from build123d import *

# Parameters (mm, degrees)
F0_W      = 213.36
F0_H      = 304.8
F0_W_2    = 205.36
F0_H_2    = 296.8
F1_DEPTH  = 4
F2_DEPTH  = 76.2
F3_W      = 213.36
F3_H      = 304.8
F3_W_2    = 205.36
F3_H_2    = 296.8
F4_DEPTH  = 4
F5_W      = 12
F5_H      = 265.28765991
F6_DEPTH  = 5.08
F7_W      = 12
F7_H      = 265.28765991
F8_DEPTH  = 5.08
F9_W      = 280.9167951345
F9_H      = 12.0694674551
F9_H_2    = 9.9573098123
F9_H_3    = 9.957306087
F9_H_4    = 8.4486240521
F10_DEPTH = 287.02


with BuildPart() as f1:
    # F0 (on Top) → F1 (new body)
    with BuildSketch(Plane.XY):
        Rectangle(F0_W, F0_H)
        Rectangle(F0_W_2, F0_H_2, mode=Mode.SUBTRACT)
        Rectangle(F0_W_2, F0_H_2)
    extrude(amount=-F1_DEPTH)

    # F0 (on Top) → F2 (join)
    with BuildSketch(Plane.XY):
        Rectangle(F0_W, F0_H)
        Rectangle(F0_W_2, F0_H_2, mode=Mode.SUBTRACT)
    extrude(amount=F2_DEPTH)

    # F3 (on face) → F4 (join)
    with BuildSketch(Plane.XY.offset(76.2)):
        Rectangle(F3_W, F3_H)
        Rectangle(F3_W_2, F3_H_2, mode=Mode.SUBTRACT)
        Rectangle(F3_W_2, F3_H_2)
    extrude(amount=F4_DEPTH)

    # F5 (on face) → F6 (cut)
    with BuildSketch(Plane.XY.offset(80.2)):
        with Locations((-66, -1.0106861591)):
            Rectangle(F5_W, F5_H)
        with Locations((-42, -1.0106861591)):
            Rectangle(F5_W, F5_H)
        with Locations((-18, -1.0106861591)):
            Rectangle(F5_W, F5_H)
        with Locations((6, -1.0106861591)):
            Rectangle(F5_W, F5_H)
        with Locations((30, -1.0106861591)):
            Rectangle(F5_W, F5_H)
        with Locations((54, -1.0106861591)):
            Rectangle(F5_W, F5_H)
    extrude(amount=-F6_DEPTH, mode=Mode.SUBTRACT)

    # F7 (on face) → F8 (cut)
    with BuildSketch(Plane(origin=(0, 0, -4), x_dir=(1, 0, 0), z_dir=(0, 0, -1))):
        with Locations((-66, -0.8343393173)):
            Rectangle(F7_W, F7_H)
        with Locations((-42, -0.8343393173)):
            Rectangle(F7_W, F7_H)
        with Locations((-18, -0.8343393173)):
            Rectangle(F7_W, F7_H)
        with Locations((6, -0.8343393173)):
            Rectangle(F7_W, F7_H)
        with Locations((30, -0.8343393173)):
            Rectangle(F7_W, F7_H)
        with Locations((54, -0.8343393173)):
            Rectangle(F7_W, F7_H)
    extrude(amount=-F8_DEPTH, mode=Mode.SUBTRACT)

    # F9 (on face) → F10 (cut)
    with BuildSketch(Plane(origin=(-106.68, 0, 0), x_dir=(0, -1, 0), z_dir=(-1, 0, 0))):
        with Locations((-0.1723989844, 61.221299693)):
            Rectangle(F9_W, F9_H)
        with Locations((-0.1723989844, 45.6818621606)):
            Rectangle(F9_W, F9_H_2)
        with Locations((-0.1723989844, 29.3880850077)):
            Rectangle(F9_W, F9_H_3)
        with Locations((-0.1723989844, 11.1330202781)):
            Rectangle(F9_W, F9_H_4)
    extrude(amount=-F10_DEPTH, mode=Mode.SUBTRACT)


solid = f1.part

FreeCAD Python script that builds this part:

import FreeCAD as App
import Part
import Sketcher
Q = App.Units.Quantity

doc = App.newDocument("Part")
body = doc.addObject("PartDesign::Body", "Body")

# Sketch on XY plane
sketch1 = body.newObject("Sketcher::SketchObject", "Sketch")
sketch1.AttachmentSupport = (doc.getObject("XY_Plane"), [""])
sketch1.MapMode = "FlatFace"
sketch1.addGeometry([
    Part.LineSegment(App.Vector(-107, 152, 0), App.Vector(-107, -152, 0)),
    Part.LineSegment(App.Vector(-107, -152, 0), App.Vector(107, -152, 0)),
    Part.LineSegment(App.Vector(107, -152, 0), App.Vector(107, 152, 0)),
    Part.LineSegment(App.Vector(107, 152, 0), App.Vector(-107, 152, 0)),
], False)
sketch1.addConstraint([
    Sketcher.Constraint("Coincident", 0, 2, 1, 1),
    Sketcher.Constraint("Coincident", 1, 2, 2, 1),
    Sketcher.Constraint("Coincident", 2, 2, 3, 1),
    Sketcher.Constraint("Coincident", 3, 2, 0, 1),
    Sketcher.Constraint("Vertical", 0),
    Sketcher.Constraint("Horizontal", 1),
    Sketcher.Constraint("Vertical", 2),
    Sketcher.Constraint("Horizontal", 3),
    Sketcher.Constraint("Symmetric", 0, 2, 2, 2, -1, 1),
    Sketcher.Constraint("DistanceY", 0, 2, 0, 1, Q("12 in")),
    Sketcher.Constraint("DistanceX", 1, 1, 1, 2, Q("8.4 in")),
])
pad1 = body.newObject("PartDesign::Pad", "Pad")
pad1.Profile = sketch1
pad1.Length = 4
pad1.Reversed = True

# Sketch on XY plane
sketch2 = body.newObject("Sketcher::SketchObject", "Sketch001")
sketch2.AttachmentSupport = (doc.getObject("XY_Plane"), [""])
sketch2.MapMode = "FlatFace"
sketch2.addGeometry([
    Part.LineSegment(App.Vector(-107, 152, 0), App.Vector(-107, -152, 0)),  # 0
    Part.LineSegment(App.Vector(-107, -152, 0), App.Vector(107, -152, 0)),  # 1
    Part.LineSegment(App.Vector(107, -152, 0), App.Vector(107, 152, 0)),  # 2
    Part.LineSegment(App.Vector(107, 152, 0), App.Vector(-107, 152, 0)),  # 3
    Part.LineSegment(App.Vector(103, -148, 0), App.Vector(-103, -148, 0)),  # 4
    Part.LineSegment(App.Vector(-103, -148, 0), App.Vector(-103, 148, 0)),  # 5
    Part.LineSegment(App.Vector(-103, 148, 0), App.Vector(103, 148, 0)),  # 6
    Part.LineSegment(App.Vector(103, 148, 0), App.Vector(103, -148, 0)),  # 7
], False)
sketch2.addConstraint([
    Sketcher.Constraint("Coincident", 0, 2, 1, 1),
    Sketcher.Constraint("Coincident", 1, 2, 2, 1),
    Sketcher.Constraint("Coincident", 2, 2, 3, 1),
    Sketcher.Constraint("Coincident", 3, 2, 0, 1),
    Sketcher.Constraint("Coincident", 4, 2, 5, 1),
    Sketcher.Constraint("Coincident", 5, 2, 6, 1),
    Sketcher.Constraint("Coincident", 6, 2, 7, 1),
    Sketcher.Constraint("Coincident", 7, 2, 4, 1),
    Sketcher.Constraint("Vertical", 0),
    Sketcher.Constraint("Horizontal", 1),
    Sketcher.Constraint("Vertical", 2),
    Sketcher.Constraint("Horizontal", 3),
    Sketcher.Constraint("Horizontal", 4),
    Sketcher.Constraint("Vertical", 5),
    Sketcher.Constraint("Horizontal", 6),
    Sketcher.Constraint("Vertical", 7),
    Sketcher.Constraint("Symmetric", 0, 2, 2, 2, -1, 1),
    Sketcher.Constraint("Symmetric", 4, 2, 6, 2, -1, 1),
    Sketcher.Constraint("DistanceY", 0, 2, 0, 1, Q("12 in")),
    Sketcher.Constraint("DistanceX", 1, 1, 1, 2, Q("8.4 in")),
    Sketcher.Constraint("DistanceX", 4, 2, 4, 1, 205.36),
    Sketcher.Constraint("DistanceY", 5, 1, 5, 2, 296.8),
])
pad2 = body.newObject("PartDesign::Pad", "Pad001")
pad2.Profile = sketch2
pad2.Length = Q("3 in")

# Sketch on XY plane
sketch3 = body.newObject("Sketcher::SketchObject", "Sketch002")
sketch3.AttachmentSupport = (doc.getObject("XY_Plane"), [""])
sketch3.MapMode = "FlatFace"
sketch3.AttachmentOffset = App.Placement(App.Vector(0, 0, 3 * 25.4), App.Rotation())
sketch3.addGeometry([
    Part.LineSegment(App.Vector(-107, 152, 0), App.Vector(-107, -152, 0)),
    Part.LineSegment(App.Vector(-107, -152, 0), App.Vector(107, -152, 0)),
    Part.LineSegment(App.Vector(107, -152, 0), App.Vector(107, 152, 0)),
    Part.LineSegment(App.Vector(107, 152, 0), App.Vector(-107, 152, 0)),
], False)
sketch3.addConstraint([
    Sketcher.Constraint("Coincident", 0, 2, 1, 1),
    Sketcher.Constraint("Coincident", 1, 2, 2, 1),
    Sketcher.Constraint("Coincident", 2, 2, 3, 1),
    Sketcher.Constraint("Coincident", 3, 2, 0, 1),
    Sketcher.Constraint("Vertical", 0),
    Sketcher.Constraint("Horizontal", 1),
    Sketcher.Constraint("Vertical", 2),
    Sketcher.Constraint("Horizontal", 3),
    Sketcher.Constraint("Symmetric", 0, 2, 2, 2, -1, 1),
    Sketcher.Constraint("DistanceY", 0, 2, 0, 1, Q("12 in")),
    Sketcher.Constraint("DistanceX", 1, 1, 1, 2, Q("8.4 in")),
])
pad3 = body.newObject("PartDesign::Pad", "Pad002")
pad3.Profile = sketch3
pad3.Length = 4

# Sketch on XY plane
sketch4 = body.newObject("Sketcher::SketchObject", "Sketch003")
sketch4.AttachmentSupport = (doc.getObject("XY_Plane"), [""])
sketch4.MapMode = "FlatFace"
sketch4.AttachmentOffset = App.Placement(App.Vector(0, 0, 80.2), App.Rotation())
sketch4.addGeometry([
    Part.LineSegment(App.Vector(-72, 132, 0), App.Vector(-72, -134, 0)),  # 0
    Part.LineSegment(App.Vector(-72, -134, 0), App.Vector(-60, -134, 0)),  # 1
    Part.LineSegment(App.Vector(-60, -134, 0), App.Vector(-60, 132, 0)),  # 2
    Part.LineSegment(App.Vector(-60, 132, 0), App.Vector(-72, 132, 0)),  # 3
    Part.LineSegment(App.Vector(-48, 132, 0), App.Vector(-48, -134, 0)),  # 4
    Part.LineSegment(App.Vector(-48, -134, 0), App.Vector(-36, -134, 0)),  # 5
    Part.LineSegment(App.Vector(-36, -134, 0), App.Vector(-36, 132, 0)),  # 6
    Part.LineSegment(App.Vector(-36, 132, 0), App.Vector(-48, 132, 0)),  # 7
    Part.LineSegment(App.Vector(-24, 132, 0), App.Vector(-24, -134, 0)),  # 8
    Part.LineSegment(App.Vector(-24, -134, 0), App.Vector(-12, -134, 0)),  # 9
    Part.LineSegment(App.Vector(-12, -134, 0), App.Vector(-12, 132, 0)),  # 10
    Part.LineSegment(App.Vector(-12, 132, 0), App.Vector(-24, 132, 0)),  # 11
    Part.LineSegment(App.Vector(0, 132, 0), App.Vector(0, -134, 0)),  # 12
    Part.LineSegment(App.Vector(0, -134, 0), App.Vector(12, -134, 0)),  # 13
    Part.LineSegment(App.Vector(12, -134, 0), App.Vector(12, 132, 0)),  # 14
    Part.LineSegment(App.Vector(12, 132, 0), App.Vector(0, 132, 0)),  # 15
    Part.LineSegment(App.Vector(24, 132, 0), App.Vector(24, -134, 0)),  # 16
    Part.LineSegment(App.Vector(24, -134, 0), App.Vector(36, -134, 0)),  # 17
    Part.LineSegment(App.Vector(36, -134, 0), App.Vector(36, 132, 0)),  # 18
    Part.LineSegment(App.Vector(36, 132, 0), App.Vector(24, 132, 0)),  # 19
    Part.LineSegment(App.Vector(48, 132, 0), App.Vector(48, -134, 0)),  # 20
    Part.LineSegment(App.Vector(48, -134, 0), App.Vector(60, -134, 0)),  # 21
    Part.LineSegment(App.Vector(60, -134, 0), App.Vector(60, 132, 0)),  # 22
    Part.LineSegment(App.Vector(60, 132, 0), App.Vector(48, 132, 0)),  # 23
], False)
sketch4.addConstraint([
    Sketcher.Constraint("Coincident", 0, 2, 1, 1),
    Sketcher.Constraint("Coincident", 1, 2, 2, 1),
    Sketcher.Constraint("Coincident", 2, 2, 3, 1),
    Sketcher.Constraint("Coincident", 3, 2, 0, 1),
    Sketcher.Constraint("Coincident", 4, 2, 5, 1),
    Sketcher.Constraint("Coincident", 5, 2, 6, 1),
    Sketcher.Constraint("Coincident", 6, 2, 7, 1),
    Sketcher.Constraint("Coincident", 7, 2, 4, 1),
    Sketcher.Constraint("Coincident", 8, 2, 9, 1),
    Sketcher.Constraint("Coincident", 9, 2, 10, 1),
    Sketcher.Constraint("Coincident", 10, 2, 11, 1),
    Sketcher.Constraint("Coincident", 11, 2, 8, 1),
    Sketcher.Constraint("Coincident", 12, 2, 13, 1),
    Sketcher.Constraint("Coincident", 13, 2, 14, 1),
    Sketcher.Constraint("Coincident", 14, 2, 15, 1),
    Sketcher.Constraint("Coincident", 15, 2, 12, 1),
    Sketcher.Constraint("Coincident", 16, 2, 17, 1),
    Sketcher.Constraint("Coincident", 17, 2, 18, 1),
    Sketcher.Constraint("Coincident", 18, 2, 19, 1),
    Sketcher.Constraint("Coincident", 19, 2, 16, 1),
    Sketcher.Constraint("Coincident", 20, 2, 21, 1),
    Sketcher.Constraint("Coincident", 21, 2, 22, 1),
    Sketcher.Constraint("Coincident", 22, 2, 23, 1),
    Sketcher.Constraint("Coincident", 23, 2, 20, 1),
    Sketcher.Constraint("Vertical", 0),
    Sketcher.Constraint("Horizontal", 1),
    Sketcher.Constraint("Vertical", 2),
    Sketcher.Constraint("Horizontal", 3),
    Sketcher.Constraint("Vertical", 4),
    Sketcher.Constraint("Horizontal", 5),
    Sketcher.Constraint("Vertical", 6),
    Sketcher.Constraint("Horizontal", 7),
    Sketcher.Constraint("Vertical", 8),
    Sketcher.Constraint("Horizontal", 9),
    Sketcher.Constraint("Vertical", 10),
    Sketcher.Constraint("Horizontal", 11),
    Sketcher.Constraint("Vertical", 12),
    Sketcher.Constraint("Horizontal", 13),
    Sketcher.Constraint("Vertical", 14),
    Sketcher.Constraint("Horizontal", 15),
    Sketcher.Constraint("Vertical", 16),
    Sketcher.Constraint("Horizontal", 17),
    Sketcher.Constraint("Vertical", 18),
    Sketcher.Constraint("Horizontal", 19),
    Sketcher.Constraint("Vertical", 20),
    Sketcher.Constraint("Horizontal", 21),
    Sketcher.Constraint("Vertical", 22),
    Sketcher.Constraint("Horizontal", 23),
    Sketcher.Constraint("Symmetric", 9, 2, 13, 2, -2),
    Sketcher.Constraint("Symmetric", 8, 2, 16, 2, -2),
    Sketcher.Constraint("Symmetric", 5, 2, 17, 2, -2),
    Sketcher.Constraint("Symmetric", 4, 2, 20, 2, -2),
    Sketcher.Constraint("Symmetric", 1, 2, 21, 2, -2),
    Sketcher.Constraint("PointOnObject", 12, 2, -2),
    Sketcher.Constraint("Horizontal", 3, 2, 6, 2),
    Sketcher.Constraint("Horizontal", 7, 2, 10, 2),
    Sketcher.Constraint("Horizontal", 11, 2, 14, 2),
    Sketcher.Constraint("Horizontal", 15, 2, 18, 2),
    Sketcher.Constraint("Horizontal", 19, 2, 22, 2),
    Sketcher.Constraint("Equal", 3, 5),
    Sketcher.Constraint("Equal", 7, 9),
    Sketcher.Constraint("Equal", 11, 13),
    Sketcher.Constraint("Equal", 15, 17),
    Sketcher.Constraint("Equal", 19, 21),
    Sketcher.Constraint("DistanceX", 1, 1, 1, 2, 12.0),
    Sketcher.Constraint("DistanceY", 0, 2, 0, 1, 265.28766),
    Sketcher.Constraint("DistanceY", 0, 2, -1, 1, 133.654516),
])
pocket1 = body.newObject("PartDesign::Pocket", "Pocket")
pocket1.Profile = sketch4
pocket1.Length = Q("0.2 in")

# Sketch on XY plane
sketch5 = body.newObject("Sketcher::SketchObject", "Sketch004")
sketch5.AttachmentSupport = (doc.getObject("XY_Plane"), [""])
sketch5.MapMode = "FlatFace"
sketch5.AttachmentOffset = App.Placement(App.Vector(0, 0, -4), App.Rotation())
sketch5.addGeometry([
    Part.LineSegment(App.Vector(-72, -132, 0), App.Vector(-72, 133, 0)),  # 0
    Part.LineSegment(App.Vector(-72, 133, 0), App.Vector(-60, 133, 0)),  # 1
    Part.LineSegment(App.Vector(-60, 133, 0), App.Vector(-60, -132, 0)),  # 2
    Part.LineSegment(App.Vector(-60, -132, 0), App.Vector(-72, -132, 0)),  # 3
    Part.LineSegment(App.Vector(-48, -132, 0), App.Vector(-48, 133, 0)),  # 4
    Part.LineSegment(App.Vector(-48, 133, 0), App.Vector(-36, 133, 0)),  # 5
    Part.LineSegment(App.Vector(-36, 133, 0), App.Vector(-36, -132, 0)),  # 6
    Part.LineSegment(App.Vector(-36, -132, 0), App.Vector(-48, -132, 0)),  # 7
    Part.LineSegment(App.Vector(-24, -132, 0), App.Vector(-24, 133, 0)),  # 8
    Part.LineSegment(App.Vector(-24, 133, 0), App.Vector(-12, 133, 0)),  # 9
    Part.LineSegment(App.Vector(-12, 133, 0), App.Vector(-12, -132, 0)),  # 10
    Part.LineSegment(App.Vector(-12, -132, 0), App.Vector(-24, -132, 0)),  # 11
    Part.LineSegment(App.Vector(0, -132, 0), App.Vector(0, 133, 0)),  # 12
    Part.LineSegment(App.Vector(0, 133, 0), App.Vector(12, 133, 0)),  # 13
    Part.LineSegment(App.Vector(12, 133, 0), App.Vector(12, -132, 0)),  # 14
    Part.LineSegment(App.Vector(12, -132, 0), App.Vector(0, -132, 0)),  # 15
    Part.LineSegment(App.Vector(24, -132, 0), App.Vector(24, 133, 0)),  # 16
    Part.LineSegment(App.Vector(24, 133, 0), App.Vector(36, 133, 0)),  # 17
    Part.LineSegment(App.Vector(36, 133, 0), App.Vector(36, -132, 0)),  # 18
    Part.LineSegment(App.Vector(36, -132, 0), App.Vector(24, -132, 0)),  # 19
    Part.LineSegment(App.Vector(48, -132, 0), App.Vector(48, 133, 0)),  # 20
    Part.LineSegment(App.Vector(48, 133, 0), App.Vector(60, 133, 0)),  # 21
    Part.LineSegment(App.Vector(60, 133, 0), App.Vector(60, -132, 0)),  # 22
    Part.LineSegment(App.Vector(60, -132, 0), App.Vector(48, -132, 0)),  # 23
], False)
sketch5.addConstraint([
    Sketcher.Constraint("Coincident", 0, 2, 1, 1),
    Sketcher.Constraint("Coincident", 1, 2, 2, 1),
    Sketcher.Constraint("Coincident", 2, 2, 3, 1),
    Sketcher.Constraint("Coincident", 3, 2, 0, 1),
    Sketcher.Constraint("Coincident", 4, 2, 5, 1),
    Sketcher.Constraint("Coincident", 5, 2, 6, 1),
    Sketcher.Constraint("Coincident", 6, 2, 7, 1),
    Sketcher.Constraint("Coincident", 7, 2, 4, 1),
    Sketcher.Constraint("Coincident", 8, 2, 9, 1),
    Sketcher.Constraint("Coincident", 9, 2, 10, 1),
    Sketcher.Constraint("Coincident", 10, 2, 11, 1),
    Sketcher.Constraint("Coincident", 11, 2, 8, 1),
    Sketcher.Constraint("Coincident", 12, 2, 13, 1),
    Sketcher.Constraint("Coincident", 13, 2, 14, 1),
    Sketcher.Constraint("Coincident", 14, 2, 15, 1),
    Sketcher.Constraint("Coincident", 15, 2, 12, 1),
    Sketcher.Constraint("Coincident", 16, 2, 17, 1),
    Sketcher.Constraint("Coincident", 17, 2, 18, 1),
    Sketcher.Constraint("Coincident", 18, 2, 19, 1),
    Sketcher.Constraint("Coincident", 19, 2, 16, 1),
    Sketcher.Constraint("Coincident", 20, 2, 21, 1),
    Sketcher.Constraint("Coincident", 21, 2, 22, 1),
    Sketcher.Constraint("Coincident", 22, 2, 23, 1),
    Sketcher.Constraint("Coincident", 23, 2, 20, 1),
    Sketcher.Constraint("Vertical", 0),
    Sketcher.Constraint("Horizontal", 1),
    Sketcher.Constraint("Vertical", 2),
    Sketcher.Constraint("Horizontal", 3),
    Sketcher.Constraint("Vertical", 4),
    Sketcher.Constraint("Horizontal", 5),
    Sketcher.Constraint("Vertical", 6),
    Sketcher.Constraint("Horizontal", 7),
    Sketcher.Constraint("Vertical", 8),
    Sketcher.Constraint("Horizontal", 9),
    Sketcher.Constraint("Vertical", 10),
    Sketcher.Constraint("Horizontal", 11),
    Sketcher.Constraint("Vertical", 12),
    Sketcher.Constraint("Horizontal", 13),
    Sketcher.Constraint("Vertical", 14),
    Sketcher.Constraint("Horizontal", 15),
    Sketcher.Constraint("Vertical", 16),
    Sketcher.Constraint("Horizontal", 17),
    Sketcher.Constraint("Vertical", 18),
    Sketcher.Constraint("Horizontal", 19),
    Sketcher.Constraint("Vertical", 20),
    Sketcher.Constraint("Horizontal", 21),
    Sketcher.Constraint("Vertical", 22),
    Sketcher.Constraint("Horizontal", 23),
    Sketcher.Constraint("Symmetric", 9, 2, 13, 2, -2),
    Sketcher.Constraint("Symmetric", 8, 2, 16, 2, -2),
    Sketcher.Constraint("Symmetric", 5, 2, 17, 2, -2),
    Sketcher.Constraint("Symmetric", 4, 2, 20, 2, -2),
    Sketcher.Constraint("Symmetric", 1, 2, 21, 2, -2),
    Sketcher.Constraint("PointOnObject", 12, 2, -2),
    Sketcher.Constraint("Horizontal", 3, 2, 6, 2),
    Sketcher.Constraint("Horizontal", 7, 2, 10, 2),
    Sketcher.Constraint("Horizontal", 11, 2, 14, 2),
    Sketcher.Constraint("Horizontal", 15, 2, 18, 2),
    Sketcher.Constraint("Horizontal", 19, 2, 22, 2),
    Sketcher.Constraint("Equal", 3, 5),
    Sketcher.Constraint("Equal", 7, 9),
    Sketcher.Constraint("Equal", 11, 13),
    Sketcher.Constraint("Equal", 15, 17),
    Sketcher.Constraint("Equal", 19, 21),
    Sketcher.Constraint("DistanceX", 1, 1, 1, 2, 12.0),
    Sketcher.Constraint("DistanceY", 0, 1, 0, 2, 265.28766),
    Sketcher.Constraint("DistanceY", -1, 1, 0, 2, 133.478169),
])
pocket2 = body.newObject("PartDesign::Pocket", "Pocket001")
pocket2.Profile = sketch5
pocket2.Length = Q("0.2 in")
pocket2.Reversed = True

# Sketch on YZ plane
sketch6 = body.newObject("Sketcher::SketchObject", "Sketch005")
sketch6.AttachmentSupport = (doc.getObject("YZ_Plane"), [""])
sketch6.MapMode = "FlatFace"
sketch6.AttachmentOffset = App.Placement(App.Vector(0, 0, -4.2 * 25.4), App.Rotation())
sketch6.addGeometry([
    Part.LineSegment(App.Vector(141, 67, 0), App.Vector(141, 55, 0)),  # 0
    Part.LineSegment(App.Vector(141, 55, 0), App.Vector(-140, 55, 0)),  # 1
    Part.LineSegment(App.Vector(-140, 55, 0), App.Vector(-140, 67, 0)),  # 2
    Part.LineSegment(App.Vector(-140, 67, 0), App.Vector(141, 67, 0)),  # 3
    Part.LineSegment(App.Vector(141, 51, 0), App.Vector(141, 41, 0)),  # 4
    Part.LineSegment(App.Vector(141, 41, 0), App.Vector(-140, 41, 0)),  # 5
    Part.LineSegment(App.Vector(-140, 41, 0), App.Vector(-140, 51, 0)),  # 6
    Part.LineSegment(App.Vector(-140, 51, 0), App.Vector(141, 51, 0)),  # 7
    Part.LineSegment(App.Vector(141, 34, 0), App.Vector(141, 24, 0)),  # 8
    Part.LineSegment(App.Vector(141, 24, 0), App.Vector(-140, 24, 0)),  # 9
    Part.LineSegment(App.Vector(-140, 24, 0), App.Vector(-140, 34, 0)),  # 10
    Part.LineSegment(App.Vector(-140, 34, 0), App.Vector(141, 34, 0)),  # 11
    Part.LineSegment(App.Vector(141, 15, 0), App.Vector(141, 7, 0)),  # 12
    Part.LineSegment(App.Vector(141, 7, 0), App.Vector(-140, 7, 0)),  # 13
    Part.LineSegment(App.Vector(-140, 7, 0), App.Vector(-140, 15, 0)),  # 14
    Part.LineSegment(App.Vector(-140, 15, 0), App.Vector(141, 15, 0)),  # 15
], False)
sketch6.addConstraint([
    Sketcher.Constraint("Coincident", 0, 2, 1, 1),
    Sketcher.Constraint("Coincident", 1, 2, 2, 1),
    Sketcher.Constraint("Coincident", 2, 2, 3, 1),
    Sketcher.Constraint("Coincident", 3, 2, 0, 1),
    Sketcher.Constraint("Coincident", 4, 2, 5, 1),
    Sketcher.Constraint("Coincident", 5, 2, 6, 1),
    Sketcher.Constraint("Coincident", 6, 2, 7, 1),
    Sketcher.Constraint("Coincident", 7, 2, 4, 1),
    Sketcher.Constraint("Coincident", 8, 2, 9, 1),
    Sketcher.Constraint("Coincident", 9, 2, 10, 1),
    Sketcher.Constraint("Coincident", 10, 2, 11, 1),
    Sketcher.Constraint("Coincident", 11, 2, 8, 1),
    Sketcher.Constraint("Coincident", 12, 2, 13, 1),
    Sketcher.Constraint("Coincident", 13, 2, 14, 1),
    Sketcher.Constraint("Coincident", 14, 2, 15, 1),
    Sketcher.Constraint("Coincident", 15, 2, 12, 1),
    Sketcher.Constraint("Vertical", 0),
    Sketcher.Constraint("Horizontal", 1),
    Sketcher.Constraint("Vertical", 2),
    Sketcher.Constraint("Horizontal", 3),
    Sketcher.Constraint("Vertical", 4),
    Sketcher.Constraint("Horizontal", 5),
    Sketcher.Constraint("Vertical", 6),
    Sketcher.Constraint("Horizontal", 7),
    Sketcher.Constraint("Vertical", 8),
    Sketcher.Constraint("Horizontal", 9),
    Sketcher.Constraint("Vertical", 10),
    Sketcher.Constraint("Horizontal", 11),
    Sketcher.Constraint("Vertical", 12),
    Sketcher.Constraint("Horizontal", 13),
    Sketcher.Constraint("Vertical", 14),
    Sketcher.Constraint("Horizontal", 15),
    Sketcher.Constraint("Vertical", 3, 2, 4, 2),
    Sketcher.Constraint("Vertical", 2, 2, 5, 2),
    Sketcher.Constraint("Vertical", 7, 2, 8, 2),
    Sketcher.Constraint("Vertical", 6, 2, 9, 2),
    Sketcher.Constraint("Vertical", 11, 2, 12, 2),
    Sketcher.Constraint("Vertical", 10, 2, 13, 2),
    Sketcher.Constraint("DistanceY", 4, 2, 4, 1, 9.95731),
    Sketcher.Constraint("DistanceX", 1, 2, -1, 1, 140.285999),
    Sketcher.Constraint("DistanceY", 8, 2, 3, 2, 42.846601),
    Sketcher.Constraint("DistanceY", 12, 2, 4, 2, 33.794499),
    Sketcher.Constraint("DistanceY", 14, 2, 9, 2, 9.0521),
    Sketcher.Constraint("DistanceX", 1, 2, 1, 1, 280.916795),
    Sketcher.Constraint("DistanceY", 0, 2, 0, 1, 12.069467),
    Sketcher.Constraint("DistanceY", 8, 2, 8, 1, 9.957306),
    Sketcher.Constraint("DistanceY", 12, 2, 12, 1, 8.448624),
    Sketcher.Constraint("DistanceY", -1, 1, 8, 2, 24.409432),
])
pocket3 = body.newObject("PartDesign::Pocket", "Pocket002")
pocket3.Profile = sketch6
pocket3.Length = Q("11.3 in")
pocket3.Reversed = True

doc.recompute()
